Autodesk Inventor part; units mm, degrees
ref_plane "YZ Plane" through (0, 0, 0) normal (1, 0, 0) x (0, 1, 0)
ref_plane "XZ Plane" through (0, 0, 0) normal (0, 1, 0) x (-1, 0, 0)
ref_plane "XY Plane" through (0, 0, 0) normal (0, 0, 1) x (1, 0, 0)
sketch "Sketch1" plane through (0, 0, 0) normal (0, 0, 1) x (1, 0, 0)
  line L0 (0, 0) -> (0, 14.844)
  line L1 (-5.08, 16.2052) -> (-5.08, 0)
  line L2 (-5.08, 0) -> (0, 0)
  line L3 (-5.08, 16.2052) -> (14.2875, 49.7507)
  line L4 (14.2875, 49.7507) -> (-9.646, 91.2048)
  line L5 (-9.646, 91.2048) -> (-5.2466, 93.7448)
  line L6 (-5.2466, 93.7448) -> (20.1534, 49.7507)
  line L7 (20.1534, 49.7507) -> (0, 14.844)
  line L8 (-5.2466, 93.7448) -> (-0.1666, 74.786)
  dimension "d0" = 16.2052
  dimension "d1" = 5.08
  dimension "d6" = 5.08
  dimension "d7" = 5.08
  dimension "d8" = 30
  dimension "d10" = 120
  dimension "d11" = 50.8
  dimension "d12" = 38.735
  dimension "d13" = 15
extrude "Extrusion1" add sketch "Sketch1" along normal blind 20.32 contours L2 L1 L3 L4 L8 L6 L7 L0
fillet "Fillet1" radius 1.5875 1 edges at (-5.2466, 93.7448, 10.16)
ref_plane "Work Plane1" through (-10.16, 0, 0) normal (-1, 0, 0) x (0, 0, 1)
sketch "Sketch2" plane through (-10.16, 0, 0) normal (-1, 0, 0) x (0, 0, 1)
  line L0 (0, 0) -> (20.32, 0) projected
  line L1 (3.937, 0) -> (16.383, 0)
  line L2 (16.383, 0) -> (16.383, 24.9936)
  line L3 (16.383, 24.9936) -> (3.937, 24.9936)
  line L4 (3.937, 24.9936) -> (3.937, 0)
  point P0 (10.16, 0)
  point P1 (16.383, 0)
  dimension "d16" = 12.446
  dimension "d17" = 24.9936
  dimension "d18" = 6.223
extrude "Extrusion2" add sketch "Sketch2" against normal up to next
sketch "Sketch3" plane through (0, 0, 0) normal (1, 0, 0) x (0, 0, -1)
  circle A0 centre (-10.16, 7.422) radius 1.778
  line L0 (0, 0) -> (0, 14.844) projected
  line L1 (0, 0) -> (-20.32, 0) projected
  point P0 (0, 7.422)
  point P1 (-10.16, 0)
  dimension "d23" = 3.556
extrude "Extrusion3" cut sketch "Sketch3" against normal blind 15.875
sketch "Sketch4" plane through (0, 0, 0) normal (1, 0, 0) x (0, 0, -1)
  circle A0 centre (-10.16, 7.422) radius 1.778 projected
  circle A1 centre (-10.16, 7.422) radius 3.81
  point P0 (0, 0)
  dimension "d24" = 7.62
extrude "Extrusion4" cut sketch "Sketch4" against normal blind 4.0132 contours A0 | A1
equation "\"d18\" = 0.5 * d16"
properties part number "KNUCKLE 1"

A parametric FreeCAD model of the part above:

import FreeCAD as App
import Part
import Sketcher

V = App.Vector
Q = App.Units.Quantity


def edges_at(feature, points):
    """Names of the edges that pass closest to the given points."""
    edges = feature.Shape.Edges
    near = lambda p: min(range(len(edges)), key=lambda i: edges[i].distToShape(Part.Vertex(*p))[0])
    return sorted({f"Edge{near(p) + 1}" for p in points})


def add_polygon(sketch, points):
    """Adds a closed chain of lines whose ends are joined by coincident constraints."""
    first, n = sketch.GeometryCount, len(points)
    for a, b in zip(points, points[1:] + points[:1]):
        sketch.addGeometry(Part.LineSegment(App.Vector(*a, 0), App.Vector(*b, 0)), False)
    for i in range(n):
        sketch.addConstraint(Sketcher.Constraint("Coincident", first + i, 2, first + (i + 1) % n, 1))

doc = App.newDocument("Part")
body = doc.addObject("PartDesign::Body", "Body")

sketch1 = body.newObject("Sketcher::SketchObject", "Sketch")
sketch1.AttachmentSupport = (doc.getObject("XY_Plane"), [""])
sketch1.MapMode = "FlatFace"
add_polygon(sketch1, [(-5.08, 0), (0, 0), (0, 14.844), (20.1534, 49.7507), (-5.2466, 93.7448), (-0.166612, 74.785993), (14.2875, 49.7507), (-5.08, 16.2052)])
sketch1.addConstraint([
    Sketcher.Constraint("Horizontal", 0),
    Sketcher.Constraint("Vertical", 1),
    Sketcher.Constraint("Vertical", 7),
    Sketcher.Constraint("Coincident", 0, 2, -1, 1),
    Sketcher.Constraint("Parallel", 3, 5),
    Sketcher.Constraint("Parallel", 2, 6),
    Sketcher.Constraint("Horizontal", 2, 2, 5, 2),
    Sketcher.Constraint("Distance", 3, Q("2 in")),
    Sketcher.Constraint("DistanceX", 0, 1, 0, 2, Q("0.2 in")),
    Sketcher.Constraint("Angle", 3, Q("120 deg")),
    Sketcher.Constraint("Angle", 6, Q("-120 deg")),
    Sketcher.Constraint("DistanceX", 3, 2, 4, 2, Q("0.2 in")),
    Sketcher.Constraint("DistanceY", 7, 2, 7, 1, Q("0.638 in")),
    Sketcher.Constraint("Distance", 6, Q("1.525 in")),
    Sketcher.Constraint("Angle", 4, Q("-75 deg")),
])
pad1 = body.newObject("PartDesign::Pad", "Pad")
pad1.Profile = sketch1
pad1.Length = Q("0.8 in")
doc.recompute()

fillet = body.newObject("PartDesign::Fillet", "Fillet")
fillet.Base = (pad1, edges_at(pad1, [(-5.247, 93.745, 10.16)]))
fillet.Radius = Q("0.0625 in")

sketch2 = body.newObject("Sketcher::SketchObject", "Sketch001")
sketch2.AttachmentSupport = (doc.getObject("YZ_Plane"), [""])
sketch2.MapMode = "FlatFace"
sketch2.AttachmentOffset = App.Placement(V(0, 0, -0.4 * 25.4), App.Rotation())
add_polygon(sketch2, [(24.9936, 3.937), (0, 3.937), (0, 16.383), (24.9936, 16.383)])
sketch2.addConstraint([
    Sketcher.Constraint("Horizontal", 0),
    Sketcher.Constraint("Vertical", 1),
    Sketcher.Constraint("Horizontal", 2),
    Sketcher.Constraint("Vertical", 3),
    Sketcher.Constraint("PointOnObject", 0, 2, -2),
    Sketcher.Constraint("DistanceY", 1, 1, 1, 2, Q("0.49 in")),
    Sketcher.Constraint("DistanceX", 0, 2, 0, 1, Q("0.984 in")),
    Sketcher.Constraint("DistanceY", -1, 1, 0, 2, Q("0.155 in")),
])
pad2 = body.newObject("PartDesign::Pad", "Pad001")
pad2.Profile = sketch2
pad2.Length = 10.154

sketch3 = body.newObject("Sketcher::SketchObject", "Sketch002")
sketch3.AttachmentSupport = (doc.getObject("YZ_Plane"), [""])
sketch3.MapMode = "FlatFace"
sketch3.addGeometry(Part.Circle(V(7.422, 10.16, 0), V(0, 0, 1), 1.778), False)
sketch3.addConstraint([
    Sketcher.Constraint("Diameter", 0, Q("0.14 in")),
    Sketcher.Constraint("DistanceY", -1, 1, 0, 3, Q("0.4 in")),
    Sketcher.Constraint("DistanceX", -1, 1, 0, 3, Q("0.2922 in")),
])
pocket1 = body.newObject("PartDesign::Pocket", "Pocket")
pocket1.Profile = sketch3
pocket1.Length = Q("0.625 in")

sketch4 = body.newObject("Sketcher::SketchObject", "Sketch003")
sketch4.AttachmentSupport = (doc.getObject("YZ_Plane"), [""])
sketch4.MapMode = "FlatFace"
sketch4.addGeometry(Part.Circle(V(7.422, 10.16, 0), V(0, 0, 1), 3.81), False)
sketch4.addConstraint([
    Sketcher.Constraint("Diameter", 0, Q("0.3 in")),
    Sketcher.Constraint("DistanceY", -1, 1, 0, 3, Q("0.4 in")),
    Sketcher.Constraint("DistanceX", -1, 1, 0, 3, Q("0.2922 in")),
])
pocket2 = body.newObject("PartDesign::Pocket", "Pocket001")
pocket2.Profile = sketch4
pocket2.Length = Q("0.158 in")

doc.recompute()
